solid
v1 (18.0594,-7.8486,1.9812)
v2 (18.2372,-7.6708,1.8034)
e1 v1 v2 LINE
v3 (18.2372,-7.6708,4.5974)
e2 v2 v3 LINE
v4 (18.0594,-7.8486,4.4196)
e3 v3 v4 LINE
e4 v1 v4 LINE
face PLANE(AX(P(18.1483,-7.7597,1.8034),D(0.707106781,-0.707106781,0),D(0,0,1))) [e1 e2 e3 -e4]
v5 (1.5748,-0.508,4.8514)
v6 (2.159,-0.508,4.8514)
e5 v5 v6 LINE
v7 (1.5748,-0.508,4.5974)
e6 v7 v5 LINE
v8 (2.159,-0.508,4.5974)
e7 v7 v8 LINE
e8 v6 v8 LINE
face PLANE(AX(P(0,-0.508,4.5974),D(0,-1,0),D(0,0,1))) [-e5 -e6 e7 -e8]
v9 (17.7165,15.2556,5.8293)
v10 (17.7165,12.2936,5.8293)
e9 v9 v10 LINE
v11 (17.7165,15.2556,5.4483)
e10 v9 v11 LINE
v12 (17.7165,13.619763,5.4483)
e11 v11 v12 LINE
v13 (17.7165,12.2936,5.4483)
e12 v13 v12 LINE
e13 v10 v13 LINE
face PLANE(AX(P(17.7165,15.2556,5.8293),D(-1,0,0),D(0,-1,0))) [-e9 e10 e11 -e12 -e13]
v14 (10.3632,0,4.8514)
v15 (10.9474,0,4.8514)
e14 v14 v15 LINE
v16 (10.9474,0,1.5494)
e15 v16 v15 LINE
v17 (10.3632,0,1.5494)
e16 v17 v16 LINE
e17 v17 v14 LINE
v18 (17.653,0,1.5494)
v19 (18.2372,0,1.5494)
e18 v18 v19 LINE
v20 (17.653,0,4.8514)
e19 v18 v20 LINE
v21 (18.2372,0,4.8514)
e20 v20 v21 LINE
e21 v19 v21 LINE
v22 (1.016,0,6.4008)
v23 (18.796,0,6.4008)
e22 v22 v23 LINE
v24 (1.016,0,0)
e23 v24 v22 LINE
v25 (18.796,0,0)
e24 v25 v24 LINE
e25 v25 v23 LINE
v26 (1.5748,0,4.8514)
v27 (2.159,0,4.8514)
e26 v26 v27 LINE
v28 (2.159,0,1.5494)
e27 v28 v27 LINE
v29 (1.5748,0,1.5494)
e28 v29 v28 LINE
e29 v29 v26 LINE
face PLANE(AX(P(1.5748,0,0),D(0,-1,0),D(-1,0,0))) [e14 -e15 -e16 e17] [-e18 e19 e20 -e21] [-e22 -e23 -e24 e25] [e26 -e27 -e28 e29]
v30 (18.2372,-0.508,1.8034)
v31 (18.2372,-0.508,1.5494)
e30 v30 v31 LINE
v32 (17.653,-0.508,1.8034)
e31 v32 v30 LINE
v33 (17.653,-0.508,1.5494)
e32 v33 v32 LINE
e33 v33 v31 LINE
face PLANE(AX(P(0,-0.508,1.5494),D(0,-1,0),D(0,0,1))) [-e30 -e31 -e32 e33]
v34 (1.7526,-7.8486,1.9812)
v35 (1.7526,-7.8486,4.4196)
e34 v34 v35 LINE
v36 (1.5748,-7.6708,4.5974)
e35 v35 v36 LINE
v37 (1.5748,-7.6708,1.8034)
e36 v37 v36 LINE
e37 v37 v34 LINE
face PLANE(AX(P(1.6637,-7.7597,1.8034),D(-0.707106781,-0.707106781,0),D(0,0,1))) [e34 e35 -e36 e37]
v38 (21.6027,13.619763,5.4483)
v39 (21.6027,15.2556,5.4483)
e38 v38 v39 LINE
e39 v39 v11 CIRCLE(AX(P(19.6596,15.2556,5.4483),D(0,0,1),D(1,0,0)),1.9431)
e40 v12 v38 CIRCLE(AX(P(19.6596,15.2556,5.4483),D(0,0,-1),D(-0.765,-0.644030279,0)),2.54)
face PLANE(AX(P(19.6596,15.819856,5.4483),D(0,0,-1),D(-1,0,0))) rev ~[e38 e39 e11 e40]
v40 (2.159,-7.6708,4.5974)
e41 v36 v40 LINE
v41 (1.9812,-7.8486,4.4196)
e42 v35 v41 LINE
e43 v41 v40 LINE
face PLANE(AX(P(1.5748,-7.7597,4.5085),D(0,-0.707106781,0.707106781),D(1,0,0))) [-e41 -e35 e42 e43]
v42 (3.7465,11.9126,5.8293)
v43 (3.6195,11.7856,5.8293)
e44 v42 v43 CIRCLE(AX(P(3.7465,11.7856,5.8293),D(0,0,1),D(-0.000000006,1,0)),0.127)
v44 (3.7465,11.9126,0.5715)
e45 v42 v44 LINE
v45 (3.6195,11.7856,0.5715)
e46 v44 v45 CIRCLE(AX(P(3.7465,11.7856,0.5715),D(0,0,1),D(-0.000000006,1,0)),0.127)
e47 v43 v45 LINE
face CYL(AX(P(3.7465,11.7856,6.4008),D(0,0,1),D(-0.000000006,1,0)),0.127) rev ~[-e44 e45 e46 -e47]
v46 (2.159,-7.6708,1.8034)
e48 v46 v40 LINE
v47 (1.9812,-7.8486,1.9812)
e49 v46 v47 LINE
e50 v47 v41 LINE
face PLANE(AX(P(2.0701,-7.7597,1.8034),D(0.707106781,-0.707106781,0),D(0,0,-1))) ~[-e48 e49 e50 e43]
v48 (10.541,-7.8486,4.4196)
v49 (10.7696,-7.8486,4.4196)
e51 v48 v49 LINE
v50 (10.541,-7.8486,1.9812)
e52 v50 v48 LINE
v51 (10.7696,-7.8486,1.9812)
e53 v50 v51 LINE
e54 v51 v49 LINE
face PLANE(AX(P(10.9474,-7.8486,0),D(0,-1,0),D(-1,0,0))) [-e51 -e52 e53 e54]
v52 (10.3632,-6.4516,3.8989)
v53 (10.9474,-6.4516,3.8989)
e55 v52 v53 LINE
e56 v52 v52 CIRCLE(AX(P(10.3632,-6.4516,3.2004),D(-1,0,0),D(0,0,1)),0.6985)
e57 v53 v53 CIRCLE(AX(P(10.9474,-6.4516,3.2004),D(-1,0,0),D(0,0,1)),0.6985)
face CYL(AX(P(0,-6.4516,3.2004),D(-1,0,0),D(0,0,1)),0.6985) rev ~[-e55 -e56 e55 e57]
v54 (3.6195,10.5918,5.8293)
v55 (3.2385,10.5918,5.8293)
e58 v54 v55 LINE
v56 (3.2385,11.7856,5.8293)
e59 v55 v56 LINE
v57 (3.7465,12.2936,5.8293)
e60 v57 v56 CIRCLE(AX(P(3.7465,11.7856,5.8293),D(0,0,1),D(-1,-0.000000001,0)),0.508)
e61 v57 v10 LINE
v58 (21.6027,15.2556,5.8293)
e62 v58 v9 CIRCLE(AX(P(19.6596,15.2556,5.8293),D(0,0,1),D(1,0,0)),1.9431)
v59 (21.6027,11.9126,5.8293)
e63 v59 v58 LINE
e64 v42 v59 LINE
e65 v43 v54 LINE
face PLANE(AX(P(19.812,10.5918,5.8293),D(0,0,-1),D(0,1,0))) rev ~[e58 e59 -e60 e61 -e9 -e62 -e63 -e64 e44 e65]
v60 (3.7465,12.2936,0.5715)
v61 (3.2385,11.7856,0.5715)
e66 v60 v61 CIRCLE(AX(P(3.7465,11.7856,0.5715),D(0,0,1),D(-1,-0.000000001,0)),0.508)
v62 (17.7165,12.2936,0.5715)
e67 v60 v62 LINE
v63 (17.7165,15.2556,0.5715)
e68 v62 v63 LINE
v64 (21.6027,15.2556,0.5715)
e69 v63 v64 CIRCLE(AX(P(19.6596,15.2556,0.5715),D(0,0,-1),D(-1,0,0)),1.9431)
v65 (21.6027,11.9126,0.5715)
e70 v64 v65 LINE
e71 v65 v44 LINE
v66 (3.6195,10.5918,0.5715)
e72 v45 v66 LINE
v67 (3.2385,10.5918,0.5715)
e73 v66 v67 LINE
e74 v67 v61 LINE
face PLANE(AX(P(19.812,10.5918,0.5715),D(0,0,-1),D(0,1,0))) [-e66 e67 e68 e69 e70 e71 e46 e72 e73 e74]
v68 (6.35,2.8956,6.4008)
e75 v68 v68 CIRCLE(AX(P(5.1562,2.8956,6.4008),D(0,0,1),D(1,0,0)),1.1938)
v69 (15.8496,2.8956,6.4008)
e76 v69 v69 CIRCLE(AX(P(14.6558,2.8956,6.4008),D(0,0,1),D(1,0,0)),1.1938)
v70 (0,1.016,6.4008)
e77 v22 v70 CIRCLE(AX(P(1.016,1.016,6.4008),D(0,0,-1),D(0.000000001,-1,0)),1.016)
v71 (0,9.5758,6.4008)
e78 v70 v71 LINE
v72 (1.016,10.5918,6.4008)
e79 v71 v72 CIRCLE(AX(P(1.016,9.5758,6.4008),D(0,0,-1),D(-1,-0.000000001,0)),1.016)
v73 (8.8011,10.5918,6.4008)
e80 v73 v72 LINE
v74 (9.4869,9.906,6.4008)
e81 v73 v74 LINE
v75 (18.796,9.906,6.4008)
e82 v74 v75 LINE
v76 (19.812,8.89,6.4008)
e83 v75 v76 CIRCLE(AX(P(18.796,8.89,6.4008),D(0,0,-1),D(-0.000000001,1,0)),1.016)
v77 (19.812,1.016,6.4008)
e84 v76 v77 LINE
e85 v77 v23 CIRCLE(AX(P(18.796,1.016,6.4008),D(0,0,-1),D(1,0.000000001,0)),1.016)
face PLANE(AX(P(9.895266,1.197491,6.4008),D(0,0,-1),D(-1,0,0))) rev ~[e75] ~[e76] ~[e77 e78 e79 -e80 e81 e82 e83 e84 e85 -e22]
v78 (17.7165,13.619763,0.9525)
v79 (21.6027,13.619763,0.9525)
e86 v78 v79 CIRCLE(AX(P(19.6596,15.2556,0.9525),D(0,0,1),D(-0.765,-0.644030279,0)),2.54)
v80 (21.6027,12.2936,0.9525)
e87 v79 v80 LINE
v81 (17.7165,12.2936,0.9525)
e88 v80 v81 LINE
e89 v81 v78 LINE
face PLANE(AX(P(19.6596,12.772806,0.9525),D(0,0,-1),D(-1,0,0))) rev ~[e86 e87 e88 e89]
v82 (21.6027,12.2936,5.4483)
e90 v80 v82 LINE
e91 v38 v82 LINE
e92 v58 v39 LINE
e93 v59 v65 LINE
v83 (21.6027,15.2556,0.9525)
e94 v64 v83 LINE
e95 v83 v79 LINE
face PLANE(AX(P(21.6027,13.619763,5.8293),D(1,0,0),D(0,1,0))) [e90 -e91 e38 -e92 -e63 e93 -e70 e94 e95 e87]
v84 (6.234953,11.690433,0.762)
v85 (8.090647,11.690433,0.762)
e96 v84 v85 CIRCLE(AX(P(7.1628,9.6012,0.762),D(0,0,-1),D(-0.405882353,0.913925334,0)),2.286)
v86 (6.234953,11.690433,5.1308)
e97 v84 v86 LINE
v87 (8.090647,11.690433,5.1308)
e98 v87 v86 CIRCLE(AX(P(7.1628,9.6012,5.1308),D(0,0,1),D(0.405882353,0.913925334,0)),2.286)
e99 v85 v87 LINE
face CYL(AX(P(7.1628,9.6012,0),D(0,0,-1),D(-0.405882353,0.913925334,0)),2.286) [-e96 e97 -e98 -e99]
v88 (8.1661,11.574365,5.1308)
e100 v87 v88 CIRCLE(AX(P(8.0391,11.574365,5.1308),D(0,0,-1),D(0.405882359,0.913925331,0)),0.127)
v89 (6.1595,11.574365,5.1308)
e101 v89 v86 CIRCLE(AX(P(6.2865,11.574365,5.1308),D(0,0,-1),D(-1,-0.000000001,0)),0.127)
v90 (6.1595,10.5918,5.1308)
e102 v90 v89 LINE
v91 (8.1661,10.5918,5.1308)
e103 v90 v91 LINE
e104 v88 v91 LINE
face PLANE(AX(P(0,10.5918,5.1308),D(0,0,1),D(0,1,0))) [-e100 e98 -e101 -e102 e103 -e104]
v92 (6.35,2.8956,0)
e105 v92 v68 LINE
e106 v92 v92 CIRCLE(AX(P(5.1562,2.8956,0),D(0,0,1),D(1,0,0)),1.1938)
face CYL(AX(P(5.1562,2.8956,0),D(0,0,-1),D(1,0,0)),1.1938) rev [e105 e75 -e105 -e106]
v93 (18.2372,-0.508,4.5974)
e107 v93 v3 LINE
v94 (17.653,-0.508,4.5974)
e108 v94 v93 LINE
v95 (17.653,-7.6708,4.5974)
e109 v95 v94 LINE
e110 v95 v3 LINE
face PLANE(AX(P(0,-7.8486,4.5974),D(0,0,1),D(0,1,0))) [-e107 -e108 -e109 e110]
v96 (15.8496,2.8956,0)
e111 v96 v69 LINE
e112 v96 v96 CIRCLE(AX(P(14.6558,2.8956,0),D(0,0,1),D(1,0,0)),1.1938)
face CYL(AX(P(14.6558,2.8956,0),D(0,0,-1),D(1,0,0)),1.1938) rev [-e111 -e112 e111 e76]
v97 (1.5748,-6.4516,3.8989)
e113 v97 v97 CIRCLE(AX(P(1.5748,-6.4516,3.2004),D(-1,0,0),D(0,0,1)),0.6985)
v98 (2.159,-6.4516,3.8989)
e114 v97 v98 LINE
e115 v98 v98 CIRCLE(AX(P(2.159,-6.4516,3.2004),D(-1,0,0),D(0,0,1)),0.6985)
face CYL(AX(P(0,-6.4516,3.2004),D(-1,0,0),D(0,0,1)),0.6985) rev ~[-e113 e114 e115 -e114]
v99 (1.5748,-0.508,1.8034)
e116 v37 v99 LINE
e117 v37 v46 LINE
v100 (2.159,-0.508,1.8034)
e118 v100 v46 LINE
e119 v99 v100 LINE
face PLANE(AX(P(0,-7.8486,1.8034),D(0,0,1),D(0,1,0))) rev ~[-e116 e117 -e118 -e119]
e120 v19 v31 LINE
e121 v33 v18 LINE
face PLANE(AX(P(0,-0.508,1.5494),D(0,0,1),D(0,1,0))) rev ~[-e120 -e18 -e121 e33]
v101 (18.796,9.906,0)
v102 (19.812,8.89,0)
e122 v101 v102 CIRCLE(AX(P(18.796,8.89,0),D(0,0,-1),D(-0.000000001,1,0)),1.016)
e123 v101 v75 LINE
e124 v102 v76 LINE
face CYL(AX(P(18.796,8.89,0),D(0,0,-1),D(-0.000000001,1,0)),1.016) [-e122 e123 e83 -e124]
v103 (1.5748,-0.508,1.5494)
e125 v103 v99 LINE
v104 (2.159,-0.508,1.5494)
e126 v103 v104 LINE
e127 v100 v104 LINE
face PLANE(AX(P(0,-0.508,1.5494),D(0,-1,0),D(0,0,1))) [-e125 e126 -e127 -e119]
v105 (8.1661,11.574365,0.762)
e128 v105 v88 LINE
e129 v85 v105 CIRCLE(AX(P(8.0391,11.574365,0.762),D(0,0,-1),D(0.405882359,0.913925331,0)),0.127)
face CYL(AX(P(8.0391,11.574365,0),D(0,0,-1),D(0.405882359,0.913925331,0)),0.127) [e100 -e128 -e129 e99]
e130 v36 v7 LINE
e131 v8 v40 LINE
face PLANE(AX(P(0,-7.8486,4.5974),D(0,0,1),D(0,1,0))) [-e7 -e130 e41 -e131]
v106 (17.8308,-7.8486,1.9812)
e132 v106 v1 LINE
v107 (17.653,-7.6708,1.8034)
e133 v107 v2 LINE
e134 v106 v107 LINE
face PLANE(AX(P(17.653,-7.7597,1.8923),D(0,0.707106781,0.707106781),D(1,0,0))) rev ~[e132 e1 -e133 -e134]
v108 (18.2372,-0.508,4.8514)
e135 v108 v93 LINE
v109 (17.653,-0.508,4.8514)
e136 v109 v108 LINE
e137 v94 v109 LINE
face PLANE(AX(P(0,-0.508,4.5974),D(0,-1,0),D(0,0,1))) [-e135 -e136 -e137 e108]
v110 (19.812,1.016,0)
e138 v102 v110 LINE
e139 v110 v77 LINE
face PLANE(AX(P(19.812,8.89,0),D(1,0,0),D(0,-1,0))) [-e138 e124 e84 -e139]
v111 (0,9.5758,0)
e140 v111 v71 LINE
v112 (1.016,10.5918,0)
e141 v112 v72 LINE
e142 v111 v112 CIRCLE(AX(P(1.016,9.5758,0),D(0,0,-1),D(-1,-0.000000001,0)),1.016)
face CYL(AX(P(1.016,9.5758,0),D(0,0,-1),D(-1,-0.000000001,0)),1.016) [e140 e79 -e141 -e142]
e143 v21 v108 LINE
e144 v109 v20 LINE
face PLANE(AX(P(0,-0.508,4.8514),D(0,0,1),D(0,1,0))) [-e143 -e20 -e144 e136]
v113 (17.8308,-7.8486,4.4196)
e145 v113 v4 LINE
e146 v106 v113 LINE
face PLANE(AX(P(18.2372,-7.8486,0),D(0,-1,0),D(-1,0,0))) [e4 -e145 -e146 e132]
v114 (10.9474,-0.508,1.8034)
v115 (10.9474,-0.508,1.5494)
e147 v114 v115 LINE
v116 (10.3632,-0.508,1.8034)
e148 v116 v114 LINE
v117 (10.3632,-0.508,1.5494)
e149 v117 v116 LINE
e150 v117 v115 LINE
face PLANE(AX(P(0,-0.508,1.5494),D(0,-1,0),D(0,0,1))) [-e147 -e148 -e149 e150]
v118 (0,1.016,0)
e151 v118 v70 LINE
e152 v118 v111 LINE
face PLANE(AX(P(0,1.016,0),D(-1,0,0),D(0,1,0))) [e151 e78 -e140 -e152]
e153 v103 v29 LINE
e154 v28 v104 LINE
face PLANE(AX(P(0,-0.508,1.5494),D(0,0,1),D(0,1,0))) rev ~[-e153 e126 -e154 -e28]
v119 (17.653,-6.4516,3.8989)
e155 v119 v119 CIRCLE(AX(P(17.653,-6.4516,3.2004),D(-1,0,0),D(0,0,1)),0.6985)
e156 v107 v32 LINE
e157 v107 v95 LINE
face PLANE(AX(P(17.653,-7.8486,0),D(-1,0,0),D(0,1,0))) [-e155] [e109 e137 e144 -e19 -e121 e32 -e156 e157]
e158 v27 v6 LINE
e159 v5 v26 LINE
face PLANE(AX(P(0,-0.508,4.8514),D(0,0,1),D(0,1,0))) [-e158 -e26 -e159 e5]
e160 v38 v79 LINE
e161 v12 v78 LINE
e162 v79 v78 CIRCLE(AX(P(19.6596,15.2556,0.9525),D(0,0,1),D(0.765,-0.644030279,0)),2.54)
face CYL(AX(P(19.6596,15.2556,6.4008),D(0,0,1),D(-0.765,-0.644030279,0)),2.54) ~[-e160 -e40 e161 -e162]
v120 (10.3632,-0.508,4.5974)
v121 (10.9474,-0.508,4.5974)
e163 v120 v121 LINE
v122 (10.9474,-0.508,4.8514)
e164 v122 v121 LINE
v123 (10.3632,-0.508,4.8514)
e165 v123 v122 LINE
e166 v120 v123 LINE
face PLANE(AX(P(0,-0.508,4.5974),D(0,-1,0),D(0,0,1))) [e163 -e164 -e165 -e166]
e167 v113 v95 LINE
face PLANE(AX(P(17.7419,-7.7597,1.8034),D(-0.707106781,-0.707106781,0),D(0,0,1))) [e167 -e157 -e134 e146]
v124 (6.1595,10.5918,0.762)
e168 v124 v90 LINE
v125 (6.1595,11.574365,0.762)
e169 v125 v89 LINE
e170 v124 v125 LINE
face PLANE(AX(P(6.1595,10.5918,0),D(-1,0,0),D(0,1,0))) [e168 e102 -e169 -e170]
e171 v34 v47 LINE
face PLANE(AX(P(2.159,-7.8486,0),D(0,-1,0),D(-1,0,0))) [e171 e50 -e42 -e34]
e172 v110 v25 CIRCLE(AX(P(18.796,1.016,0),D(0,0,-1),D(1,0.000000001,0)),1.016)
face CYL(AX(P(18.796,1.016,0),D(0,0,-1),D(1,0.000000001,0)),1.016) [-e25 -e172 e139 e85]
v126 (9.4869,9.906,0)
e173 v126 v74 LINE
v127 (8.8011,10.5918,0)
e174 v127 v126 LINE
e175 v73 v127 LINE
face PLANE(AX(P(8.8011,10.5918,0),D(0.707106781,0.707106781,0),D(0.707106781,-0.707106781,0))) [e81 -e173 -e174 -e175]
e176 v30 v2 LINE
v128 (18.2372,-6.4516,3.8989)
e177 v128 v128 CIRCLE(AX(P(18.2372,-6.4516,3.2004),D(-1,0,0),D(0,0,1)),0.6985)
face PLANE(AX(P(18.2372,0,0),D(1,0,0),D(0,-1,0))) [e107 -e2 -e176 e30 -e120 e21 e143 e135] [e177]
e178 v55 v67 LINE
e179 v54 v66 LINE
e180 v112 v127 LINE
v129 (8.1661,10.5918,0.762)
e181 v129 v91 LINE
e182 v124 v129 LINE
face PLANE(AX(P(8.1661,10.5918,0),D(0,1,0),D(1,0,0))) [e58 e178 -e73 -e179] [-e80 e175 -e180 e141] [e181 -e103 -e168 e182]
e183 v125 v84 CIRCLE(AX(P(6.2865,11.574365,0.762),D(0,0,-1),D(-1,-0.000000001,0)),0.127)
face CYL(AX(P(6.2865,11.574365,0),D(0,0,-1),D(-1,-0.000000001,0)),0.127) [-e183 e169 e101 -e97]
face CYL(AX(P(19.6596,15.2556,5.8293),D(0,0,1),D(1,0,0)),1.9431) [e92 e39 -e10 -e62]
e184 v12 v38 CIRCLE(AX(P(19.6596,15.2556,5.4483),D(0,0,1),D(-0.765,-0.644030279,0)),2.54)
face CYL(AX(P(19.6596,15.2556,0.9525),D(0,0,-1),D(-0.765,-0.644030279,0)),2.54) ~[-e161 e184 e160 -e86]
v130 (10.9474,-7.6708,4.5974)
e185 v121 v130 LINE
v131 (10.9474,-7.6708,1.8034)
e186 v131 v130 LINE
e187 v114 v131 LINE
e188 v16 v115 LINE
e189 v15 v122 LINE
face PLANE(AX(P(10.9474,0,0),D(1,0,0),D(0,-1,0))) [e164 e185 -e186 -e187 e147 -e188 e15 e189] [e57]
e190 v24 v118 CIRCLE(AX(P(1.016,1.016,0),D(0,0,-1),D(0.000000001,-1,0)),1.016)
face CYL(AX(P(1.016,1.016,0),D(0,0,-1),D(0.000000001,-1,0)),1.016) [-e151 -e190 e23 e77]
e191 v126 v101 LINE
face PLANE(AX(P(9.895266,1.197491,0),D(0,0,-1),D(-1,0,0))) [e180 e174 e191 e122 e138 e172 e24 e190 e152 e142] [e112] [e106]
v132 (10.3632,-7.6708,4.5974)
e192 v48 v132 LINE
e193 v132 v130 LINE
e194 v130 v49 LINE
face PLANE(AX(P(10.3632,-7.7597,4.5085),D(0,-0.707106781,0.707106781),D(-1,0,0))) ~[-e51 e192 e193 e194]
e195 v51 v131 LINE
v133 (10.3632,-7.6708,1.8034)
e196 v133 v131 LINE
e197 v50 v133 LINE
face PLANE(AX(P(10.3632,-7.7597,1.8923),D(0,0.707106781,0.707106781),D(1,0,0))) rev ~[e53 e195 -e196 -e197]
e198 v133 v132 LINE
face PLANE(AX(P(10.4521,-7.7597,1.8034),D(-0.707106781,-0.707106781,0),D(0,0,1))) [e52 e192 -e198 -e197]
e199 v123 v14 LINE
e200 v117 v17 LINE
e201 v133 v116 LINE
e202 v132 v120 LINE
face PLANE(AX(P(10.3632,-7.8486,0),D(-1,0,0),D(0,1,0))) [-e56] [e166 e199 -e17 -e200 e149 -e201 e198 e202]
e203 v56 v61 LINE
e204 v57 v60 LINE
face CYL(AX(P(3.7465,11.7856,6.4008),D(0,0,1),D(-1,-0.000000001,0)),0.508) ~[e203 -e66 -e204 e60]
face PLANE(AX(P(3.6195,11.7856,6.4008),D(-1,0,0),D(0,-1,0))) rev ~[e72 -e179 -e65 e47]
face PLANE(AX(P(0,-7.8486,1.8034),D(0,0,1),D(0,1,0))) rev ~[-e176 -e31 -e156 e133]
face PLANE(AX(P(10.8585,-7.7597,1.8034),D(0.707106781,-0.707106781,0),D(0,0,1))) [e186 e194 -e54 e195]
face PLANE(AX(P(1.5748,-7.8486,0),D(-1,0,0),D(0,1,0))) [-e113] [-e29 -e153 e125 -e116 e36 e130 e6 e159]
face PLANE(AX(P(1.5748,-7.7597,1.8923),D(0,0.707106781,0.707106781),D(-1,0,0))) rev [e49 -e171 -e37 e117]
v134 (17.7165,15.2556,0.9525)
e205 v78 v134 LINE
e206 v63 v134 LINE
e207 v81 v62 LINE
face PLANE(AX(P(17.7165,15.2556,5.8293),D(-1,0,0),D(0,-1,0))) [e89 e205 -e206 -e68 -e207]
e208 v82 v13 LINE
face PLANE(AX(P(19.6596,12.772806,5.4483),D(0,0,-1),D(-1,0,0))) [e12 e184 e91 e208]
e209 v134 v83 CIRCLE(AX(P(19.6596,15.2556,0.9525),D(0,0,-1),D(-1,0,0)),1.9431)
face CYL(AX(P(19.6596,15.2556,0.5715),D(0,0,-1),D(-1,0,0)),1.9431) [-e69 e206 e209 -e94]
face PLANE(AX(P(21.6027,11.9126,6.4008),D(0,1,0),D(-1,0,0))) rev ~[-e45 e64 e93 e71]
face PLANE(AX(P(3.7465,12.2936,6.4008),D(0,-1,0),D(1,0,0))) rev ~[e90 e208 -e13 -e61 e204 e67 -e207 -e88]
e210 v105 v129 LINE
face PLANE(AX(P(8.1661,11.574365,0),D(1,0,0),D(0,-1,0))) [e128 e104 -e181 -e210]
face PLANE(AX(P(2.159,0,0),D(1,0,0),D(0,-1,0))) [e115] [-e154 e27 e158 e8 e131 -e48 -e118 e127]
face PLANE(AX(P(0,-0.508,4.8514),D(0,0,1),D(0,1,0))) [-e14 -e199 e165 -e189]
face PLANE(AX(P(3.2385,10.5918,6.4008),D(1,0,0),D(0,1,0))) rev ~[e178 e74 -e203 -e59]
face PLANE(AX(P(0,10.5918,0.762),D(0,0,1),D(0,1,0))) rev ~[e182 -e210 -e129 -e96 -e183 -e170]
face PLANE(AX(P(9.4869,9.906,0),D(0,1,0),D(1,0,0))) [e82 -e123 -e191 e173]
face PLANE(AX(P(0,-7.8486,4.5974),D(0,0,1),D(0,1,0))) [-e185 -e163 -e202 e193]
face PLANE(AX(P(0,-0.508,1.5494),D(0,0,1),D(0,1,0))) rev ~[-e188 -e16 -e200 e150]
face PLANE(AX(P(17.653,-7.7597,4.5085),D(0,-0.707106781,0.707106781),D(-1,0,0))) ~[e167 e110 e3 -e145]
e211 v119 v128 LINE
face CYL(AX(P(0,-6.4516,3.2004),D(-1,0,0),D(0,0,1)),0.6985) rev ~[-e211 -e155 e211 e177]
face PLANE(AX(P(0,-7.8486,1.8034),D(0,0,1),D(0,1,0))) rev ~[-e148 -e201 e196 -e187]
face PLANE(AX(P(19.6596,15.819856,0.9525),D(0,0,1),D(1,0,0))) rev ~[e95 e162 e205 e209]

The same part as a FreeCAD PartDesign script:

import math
import FreeCAD as App
import Part
import Sketcher
from FreeCAD import Vector
Q = App.Units.Quantity


def edges_at(feature, points):
    """Names of the edges that pass closest to the given points."""
    edges = feature.Shape.Edges
    near = lambda p: min(range(len(edges)), key=lambda i: edges[i].distToShape(Part.Vertex(*p))[0])
    return sorted({f"Edge{near(p) + 1}" for p in points})

doc = App.newDocument("Part")
body = doc.addObject("PartDesign::Body", "Body")

# Sketch on XY plane
sketch1 = body.newObject("Sketcher::SketchObject", "Sketch")
sketch1.AttachmentSupport = (doc.getObject("XY_Plane"), [""])
sketch1.MapMode = "FlatFace"
sketch1.addGeometry([
    Part.LineSegment(Vector(9.4869, 9.906, 0), Vector(8.8011, 10.5918, 0)),  # 0
    Part.LineSegment(Vector(8.8011, 10.5918, 0), Vector(8.1661, 10.5918, 0)),  # 1
    Part.LineSegment(Vector(8.1661, 10.5918, 0), Vector(8.1661, 11.574365, 0)),  # 2
    Part.ArcOfCircle(Part.Circle(Vector(8.0391, 11.574365, 0), Vector(0, 0, 1), 0.127), math.radians(0), math.radians(66.053568)),  # 3
    Part.ArcOfCircle(Part.Circle(Vector(7.1628, 9.6012, 0), Vector(0, 0, 1), 2.286), math.radians(66.053568), math.radians(113.946432)),  # 4
    Part.ArcOfCircle(Part.Circle(Vector(6.2865, 11.574365, 0), Vector(0, 0, 1), 0.127), math.radians(113.946432), math.radians(180)),  # 5
    Part.LineSegment(Vector(6.1595, 11.574365, 0), Vector(6.1595, 10.5918, 0)),  # 6
    Part.LineSegment(Vector(6.1595, 10.5918, 0), Vector(1.016, 10.5918, 0)),  # 7
    Part.ArcOfCircle(Part.Circle(Vector(1.016, 9.5758, 0), Vector(0, 0, 1), 1.016), math.radians(90), math.radians(180)),  # 8
    Part.LineSegment(Vector(0, 9.5758, 0), Vector(0, 1.016, 0)),  # 9
    Part.ArcOfCircle(Part.Circle(Vector(1.016, 1.016, 0), Vector(0, 0, 1), 1.016), math.radians(180), math.radians(270)),  # 10
    Part.LineSegment(Vector(1.016, 0, 0), Vector(1.5748, 0, 0)),  # 11
    Part.LineSegment(Vector(1.5748, 0, 0), Vector(1.5748, -7.8486, 0)),  # 12
    Part.LineSegment(Vector(1.5748, -7.8486, 0), Vector(2.159, -7.8486, 0)),  # 13
    Part.LineSegment(Vector(2.159, -7.8486, 0), Vector(2.159, 0, 0)),  # 14
    Part.LineSegment(Vector(2.159, 0, 0), Vector(10.3632, 0, 0)),  # 15
    Part.LineSegment(Vector(10.3632, 0, 0), Vector(10.3632, -7.8486, 0)),  # 16
    Part.LineSegment(Vector(10.3632, -7.8486, 0), Vector(10.9474, -7.8486, 0)),  # 17
    Part.LineSegment(Vector(10.9474, -7.8486, 0), Vector(10.9474, 0, 0)),  # 18
    Part.LineSegment(Vector(10.9474, 0, 0), Vector(17.653, 0, 0)),  # 19
    Part.LineSegment(Vector(17.653, 0, 0), Vector(17.653, -7.8486, 0)),  # 20
    Part.LineSegment(Vector(17.653, -7.8486, 0), Vector(18.2372, -7.8486, 0)),  # 21
    Part.LineSegment(Vector(18.2372, -7.8486, 0), Vector(18.2372, 0, 0)),  # 22
    Part.LineSegment(Vector(18.2372, 0, 0), Vector(18.796, 0, 0)),  # 23
    Part.ArcOfCircle(Part.Circle(Vector(18.796, 1.016, 0), Vector(0, 0, 1), 1.016), math.radians(-90), math.radians(0)),  # 24
    Part.LineSegment(Vector(19.812, 1.016, 0), Vector(19.812, 8.89, 0)),  # 25
    Part.ArcOfCircle(Part.Circle(Vector(18.796, 8.89, 0), Vector(0, 0, 1), 1.016), math.radians(0), math.radians(90)),  # 26
    Part.LineSegment(Vector(18.796, 9.906, 0), Vector(9.4869, 9.906, 0)),  # 27
    Part.Circle(Vector(14.6558, 2.8956, 0), Vector(0, 0, 1), 1.1938),  # 28
    Part.Circle(Vector(5.1562, 2.8956, 0), Vector(0, 0, 1), 1.1938),  # 29
], False)
sketch1.addConstraint([
    Sketcher.Constraint("Coincident", 0, 2, 1, 1),
    Sketcher.Constraint("Coincident", 1, 2, 2, 1),
    Sketcher.Constraint("Tangent", 2, 2, 3, 1),
    Sketcher.Constraint("Tangent", 3, 2, 4, 1),
    Sketcher.Constraint("Tangent", 4, 2, 5, 1),
    Sketcher.Constraint("Tangent", 5, 2, 6, 1),
    Sketcher.Constraint("Coincident", 6, 2, 7, 1),
    Sketcher.Constraint("Tangent", 7, 2, 8, 1),
    Sketcher.Constraint("Tangent", 8, 2, 9, 1),
    Sketcher.Constraint("Tangent", 9, 2, 10, 1),
    Sketcher.Constraint("Tangent", 10, 2, 11, 1),
    Sketcher.Constraint("Coincident", 11, 2, 12, 1),
    Sketcher.Constraint("Coincident", 12, 2, 13, 1),
    Sketcher.Constraint("Coincident", 13, 2, 14, 1),
    Sketcher.Constraint("Coincident", 14, 2, 15, 1),
    Sketcher.Constraint("Coincident", 15, 2, 16, 1),
    Sketcher.Constraint("Coincident", 16, 2, 17, 1),
    Sketcher.Constraint("Coincident", 17, 2, 18, 1),
    Sketcher.Constraint("Coincident", 18, 2, 19, 1),
    Sketcher.Constraint("Coincident", 19, 2, 20, 1),
    Sketcher.Constraint("Coincident", 20, 2, 21, 1),
    Sketcher.Constraint("Coincident", 21, 2, 22, 1),
    Sketcher.Constraint("Coincident", 22, 2, 23, 1),
    Sketcher.Constraint("Tangent", 23, 2, 24, 1),
    Sketcher.Constraint("Tangent", 24, 2, 25, 1),
    Sketcher.Constraint("Tangent", 25, 2, 26, 1),
    Sketcher.Constraint("Tangent", 26, 2, 27, 1),
    Sketcher.Constraint("Coincident", 27, 2, 0, 1),
    Sketcher.Constraint("Horizontal", 1),
    Sketcher.Constraint("Vertical", 2),
    Sketcher.Constraint("Vertical", 6),
    Sketcher.Constraint("Horizontal", 7),
    Sketcher.Constraint("Vertical", 9),
    Sketcher.Constraint("Horizontal", 11),
    Sketcher.Constraint("Vertical", 12),
    Sketcher.Constraint("Horizontal", 13),
    Sketcher.Constraint("Vertical", 14),
    Sketcher.Constraint("Horizontal", 15),
    Sketcher.Constraint("Vertical", 16),
    Sketcher.Constraint("Horizontal", 17),
    Sketcher.Constraint("Vertical", 18),
    Sketcher.Constraint("Horizontal", 19),
    Sketcher.Constraint("Vertical", 20),
    Sketcher.Constraint("Horizontal", 21),
    Sketcher.Constraint("Vertical", 22),
    Sketcher.Constraint("Horizontal", 23),
    Sketcher.Constraint("Vertical", 25),
    Sketcher.Constraint("Horizontal", 27),
    Sketcher.Constraint("Equal", 3, 5),
    Sketcher.Constraint("Equal", 8, 10),
    Sketcher.Constraint("Equal", 10, 24),
    Sketcher.Constraint("Equal", 24, 26),
    Sketcher.Constraint("Equal", 28, 29),
    Sketcher.Constraint("PointOnObject", 8, 2, -2),
    Sketcher.Constraint("PointOnObject", 10, 2, -1),
    Sketcher.Constraint("PointOnObject", 14, 2, -1),
    Sketcher.Constraint("PointOnObject", 18, 2, -1),
    Sketcher.Constraint("PointOnObject", 22, 2, -1),
    Sketcher.Constraint("Horizontal", 3, 3, 5, 3),
    Sketcher.Constraint("Horizontal", 28, 3, 29, 3),
    Sketcher.Constraint("Horizontal", 1, 2, 6, 2),
    Sketcher.Constraint("Horizontal", 13, 2, 16, 2),
    Sketcher.Constraint("Horizontal", 17, 2, 20, 2),
    Sketcher.Constraint("Equal", 13, 17),
    Sketcher.Constraint("Equal", 17, 21),
    Sketcher.Constraint("Equal", 11, 23),
    Sketcher.Constraint("Radius", 4, Q("0.09 in")),
    Sketcher.Constraint("Radius", 8, Q("0.04 in")),
    Sketcher.Constraint("Diameter", 28, Q("0.094 in")),
    Sketcher.Constraint("Angle", 0, Q("135 deg")),
    Sketcher.Constraint("Radius", 3, Q("0.005 in")),
    Sketcher.Constraint("DistanceY", 25, 1, 25, 2, Q("0.31 in")),
    Sketcher.Constraint("DistanceX", 10, 3, 24, 3, Q("0.7 in")),
    Sketcher.Constraint("DistanceX", 1, 2, 1, 1, Q("0.025 in")),
    Sketcher.Constraint("DistanceX", 11, 1, 11, 2, Q("0.022 in")),
    Sketcher.Constraint("DistanceX", 13, 1, 13, 2, Q("0.023 in")),
    Sketcher.Constraint("DistanceX", 15, 1, 15, 2, Q("0.323 in")),
    Sketcher.Constraint("DistanceY", 9, 2, 9, 1, Q("0.337 in")),
    Sketcher.Constraint("DistanceY", 12, 2, 12, 1, Q("0.309 in")),
    Sketcher.Constraint("DistanceX", 7, 2, 7, 1, Q("0.2025 in")),
    Sketcher.Constraint("DistanceX", 27, 2, 27, 1, Q("0.3665 in")),
    Sketcher.Constraint("DistanceY", -1, 1, 4, 3, Q("0.378 in")),
    Sketcher.Constraint("DistanceX", -1, 1, 28, 3, Q("0.577 in")),
    Sketcher.Constraint("DistanceY", -1, 1, 28, 3, Q("0.114 in")),
    Sketcher.Constraint("DistanceX", -1, 1, 29, 3, Q("0.203 in")),
])
pad1 = body.newObject("PartDesign::Pad", "Pad")
pad1.Profile = sketch1
pad1.Length = Q("0.252 in")

# Sketch on YZ plane
sketch2 = body.newObject("Sketcher::SketchObject", "Sketch001")
sketch2.AttachmentSupport = (doc.getObject("YZ_Plane"), [""])
sketch2.MapMode = "FlatFace"
sketch2.addGeometry([
    Part.LineSegment(Vector(-7.8486, 0, 0), Vector(-7.8486, 1.8034, 0)),  # 0
    Part.LineSegment(Vector(-7.8486, 1.8034, 0), Vector(-0.508, 1.8034, 0)),  # 1
    Part.LineSegment(Vector(-0.508, 1.8034, 0), Vector(-0.508, 1.5494, 0)),  # 2
    Part.LineSegment(Vector(-0.508, 1.5494, 0), Vector(0, 1.5494, 0)),  # 3
    Part.LineSegment(Vector(0, 1.5494, 0), Vector(0, 0, 0)),  # 4
    Part.LineSegment(Vector(0, 0, 0), Vector(-7.8486, 0, 0)),  # 5
    Part.LineSegment(Vector(-0.508, 4.5974, 0), Vector(-7.8486, 4.5974, 0)),  # 6
    Part.LineSegment(Vector(-7.8486, 4.5974, 0), Vector(-7.8486, 6.4008, 0)),  # 7
    Part.LineSegment(Vector(-7.8486, 6.4008, 0), Vector(0, 6.4008, 0)),  # 8
    Part.LineSegment(Vector(0, 6.4008, 0), Vector(0, 4.8514, 0)),  # 9
    Part.LineSegment(Vector(0, 4.8514, 0), Vector(-0.508, 4.8514, 0)),  # 10
    Part.LineSegment(Vector(-0.508, 4.8514, 0), Vector(-0.508, 4.5974, 0)),  # 11
    Part.LineSegment(Vector(11.8872, 5.1308, 0), Vector(10.5918, 5.1308, 0)),  # 12
    Part.LineSegment(Vector(10.5918, 5.1308, 0), Vector(10.5918, 6.4008, 0)),  # 13
    Part.LineSegment(Vector(10.5918, 6.4008, 0), Vector(11.8872, 6.4008, 0)),  # 14
    Part.LineSegment(Vector(11.8872, 6.4008, 0), Vector(11.8872, 5.1308, 0)),  # 15
    Part.Circle(Vector(-6.4516, 3.2004, 0), Vector(0, 0, 1), 0.6985),  # 16
    Part.LineSegment(Vector(11.8872, 0, 0), Vector(10.5918, 0, 0)),  # 17
    Part.LineSegment(Vector(10.5918, 0, 0), Vector(10.5918, 0.762, 0)),  # 18
    Part.LineSegment(Vector(10.5918, 0.762, 0), Vector(11.8872, 0.762, 0)),  # 19
    Part.LineSegment(Vector(11.8872, 0.762, 0), Vector(11.8872, 0, 0)),  # 20
], False)
sketch2.addConstraint([
    Sketcher.Constraint("Coincident", 0, 2, 1, 1),
    Sketcher.Constraint("Coincident", 1, 2, 2, 1),
    Sketcher.Constraint("Coincident", 2, 2, 3, 1),
    Sketcher.Constraint("Coincident", 3, 2, 4, 1),
    Sketcher.Constraint("Coincident", 4, 2, 5, 1),
    Sketcher.Constraint("Coincident", 5, 2, 0, 1),
    Sketcher.Constraint("Coincident", 6, 2, 7, 1),
    Sketcher.Constraint("Coincident", 7, 2, 8, 1),
    Sketcher.Constraint("Coincident", 8, 2, 9, 1),
    Sketcher.Constraint("Coincident", 9, 2, 10, 1),
    Sketcher.Constraint("Coincident", 10, 2, 11, 1),
    Sketcher.Constraint("Coincident", 11, 2, 6, 1),
    Sketcher.Constraint("Coincident", 12, 2, 13, 1),
    Sketcher.Constraint("Coincident", 13, 2, 14, 1),
    Sketcher.Constraint("Coincident", 14, 2, 15, 1),
    Sketcher.Constraint("Coincident", 15, 2, 12, 1),
    Sketcher.Constraint("Coincident", 17, 2, 18, 1),
    Sketcher.Constraint("Coincident", 18, 2, 19, 1),
    Sketcher.Constraint("Coincident", 19, 2, 20, 1),
    Sketcher.Constraint("Coincident", 20, 2, 17, 1),
    Sketcher.Constraint("Vertical", 0),
    Sketcher.Constraint("Horizontal", 1),
    Sketcher.Constraint("Vertical", 2),
    Sketcher.Constraint("Horizontal", 3),
    Sketcher.Constraint("Vertical", 4),
    Sketcher.Constraint("Horizontal", 5),
    Sketcher.Constraint("Horizontal", 6),
    Sketcher.Constraint("Vertical", 7),
    Sketcher.Constraint("Horizontal", 8),
    Sketcher.Constraint("Vertical", 9),
    Sketcher.Constraint("Horizontal", 10),
    Sketcher.Constraint("Vertical", 11),
    Sketcher.Constraint("Horizontal", 12),
    Sketcher.Constraint("Vertical", 13),
    Sketcher.Constraint("Horizontal", 14),
    Sketcher.Constraint("Vertical", 15),
    Sketcher.Constraint("Horizontal", 17),
    Sketcher.Constraint("Vertical", 18),
    Sketcher.Constraint("Horizontal", 19),
    Sketcher.Constraint("Vertical", 20),
    Sketcher.Constraint("Coincident", 4, 2, -1, 1),
    Sketcher.Constraint("PointOnObject", 8, 2, -2),
    Sketcher.Constraint("PointOnObject", 17, 2, -1),
    Sketcher.Constraint("Horizontal", 8, 2, 13, 2),
    Sketcher.Constraint("Vertical", 5, 2, 6, 2),
    Sketcher.Constraint("Vertical", 2, 2, 10, 2),
    Sketcher.Constraint("Vertical", 13, 2, 17, 2),
    Sketcher.Constraint("Vertical", 15, 2, 19, 2),
    Sketcher.Constraint("Equal", 0, 7),
    Sketcher.Constraint("Equal", 4, 9),
    Sketcher.Constraint("Diameter", 16, Q("0.055 in")),
    Sketcher.Constraint("DistanceX", 3, 1, 3, 2, Q("0.02 in")),
    Sketcher.Constraint("DistanceY", 2, 2, 2, 1, Q("0.01 in")),
    Sketcher.Constraint("DistanceY", 13, 1, 13, 2, Q("0.05 in")),
    Sketcher.Constraint("DistanceY", 18, 1, 18, 2, Q("0.03 in")),
    Sketcher.Constraint("DistanceX", 1, 1, 1, 2, Q("0.289 in")),
    Sketcher.Constraint("DistanceX", 12, 2, 12, 1, Q("0.051 in")),
    Sketcher.Constraint("DistanceY", 0, 1, 0, 2, Q("0.071 in")),
    Sketcher.Constraint("DistanceY", 0, 2, 6, 2, Q("0.11 in")),
    Sketcher.Constraint("DistanceX", 16, 3, -1, 1, Q("0.254 in")),
    Sketcher.Constraint("DistanceY", -1, 1, 16, 3, Q("0.126 in")),
    Sketcher.Constraint("DistanceX", -1, 1, 12, 2, Q("0.417 in")),
])
pocket1 = body.newObject("PartDesign::Pocket", "Pocket")
pocket1.Profile = sketch2
pocket1.Type = "ThroughAll"
pocket1.Reversed = True
doc.recompute()

chamfer = body.newObject("PartDesign::Chamfer", "Chamfer")
chamfer.Base = (pocket1, edges_at(pocket1, [
    (1.867, -7.849, 1.803),
    (10.655, -7.849, 1.803),
    (17.945, -7.849, 1.803),
    (18.237, -7.849, 3.2),
    (17.653, -7.849, 3.2),
    (10.947, -7.849, 3.2),
    (10.363, -7.849, 3.2),
    (2.159, -7.849, 3.2),
    (1.575, -7.849, 3.2),
    (1.867, -7.849, 4.597),
    (10.655, -7.849, 4.597),
    (17.945, -7.849, 4.597),
]))
chamfer.Size = Q("0.007 in")

# Sketch on XY plane
sketch3 = body.newObject("Sketcher::SketchObject", "Sketch002")
sketch3.AttachmentSupport = (doc.getObject("XY_Plane"), [""])
sketch3.MapMode = "FlatFace"
sketch3.AttachmentOffset = App.Placement(Vector(0, 0, 0.252 * 25.4), App.Rotation())
sketch3.addGeometry([
    Part.LineSegment(Vector(3.2385, 11.7856, 0), Vector(3.2385, 10.5918, 0)),  # 0
    Part.LineSegment(Vector(3.2385, 10.5918, 0), Vector(3.6195, 10.5918, 0)),  # 1
    Part.LineSegment(Vector(3.6195, 10.5918, 0), Vector(3.6195, 11.7856, 0)),  # 2
    Part.ArcOfCircle(Part.Circle(Vector(3.7465, 11.7856, 0), Vector(0, 0, 1), 0.127), math.radians(90), math.radians(180)),  # 3
    Part.LineSegment(Vector(3.7465, 11.9126, 0), Vector(21.6027, 11.9126, 0)),  # 4
    Part.LineSegment(Vector(21.6027, 11.9126, 0), Vector(21.6027, 13.619763, 0)),  # 5
    Part.ArcOfCircle(Part.Circle(Vector(19.6596, 15.2556, 0), Vector(0, 0, 1), 2.54), math.radians(-40.093008), math.radians(220.093008)),  # 6
    Part.LineSegment(Vector(17.7165, 13.619763, 0), Vector(17.7165, 12.2936, 0)),  # 7
    Part.LineSegment(Vector(17.7165, 12.2936, 0), Vector(3.7465, 12.2936, 0)),  # 8
    Part.ArcOfCircle(Part.Circle(Vector(3.7465, 11.7856, 0), Vector(0, 0, 1), 0.508), math.radians(90), math.radians(180)),  # 9
], False)
sketch3.addConstraint([
    Sketcher.Constraint("Coincident", 0, 2, 1, 1),
    Sketcher.Constraint("Coincident", 1, 2, 2, 1),
    Sketcher.Constraint("Tangent", 2, 2, 3, 2),
    Sketcher.Constraint("Tangent", 3, 1, 4, 1),
    Sketcher.Constraint("Coincident", 4, 2, 5, 1),
    Sketcher.Constraint("Coincident", 5, 2, 6, 1),
    Sketcher.Constraint("Coincident", 6, 2, 7, 1),
    Sketcher.Constraint("Coincident", 7, 2, 8, 1),
    Sketcher.Constraint("Tangent", 8, 2, 9, 1),
    Sketcher.Constraint("Tangent", 9, 2, 0, 1),
    Sketcher.Constraint("Vertical", 0),
    Sketcher.Constraint("Horizontal", 1),
    Sketcher.Constraint("Vertical", 2),
    Sketcher.Constraint("Horizontal", 4),
    Sketcher.Constraint("Vertical", 5),
    Sketcher.Constraint("Vertical", 7),
    Sketcher.Constraint("Horizontal", 8),
    Sketcher.Constraint("Coincident", 9, 3, 3, 3),
    Sketcher.Constraint("Horizontal", 5, 2, 6, 2),
    Sketcher.Constraint("Radius", 6, Q("0.1 in")),
    Sketcher.Constraint("Radius", 9, Q("0.02 in")),
    Sketcher.Constraint("Radius", 3, Q("0.005 in")),
    Sketcher.Constraint("DistanceX", 8, 2, 8, 1, Q("0.55 in")),
    Sketcher.Constraint("DistanceX", 4, 1, 4, 2, Q("0.703 in")),
    Sketcher.Constraint("DistanceY", 0, 2, 0, 1, Q("0.047 in")),
    Sketcher.Constraint("DistanceY", -1, 1, 3, 3, Q("0.464 in")),
    Sketcher.Constraint("DistanceX", -1, 1, 6, 3, Q("0.774 in")),
    Sketcher.Constraint("DistanceY", -1, 1, 6, 3, Q("15.2556 mm")),
])
pad2 = body.newObject("PartDesign::Pad", "Pad001")
pad2.Profile = sketch3
pad2.Length = Q("0.252 in")
pad2.Reversed = True

# Sketch on YZ plane
sketch4 = body.newObject("Sketcher::SketchObject", "Sketch003")
sketch4.AttachmentSupport = (doc.getObject("YZ_Plane"), [""])
sketch4.MapMode = "FlatFace"
sketch4.AttachmentOffset = App.Placement(Vector(0, 0, 0.78 * 25.4), App.Rotation())
sketch4.addGeometry([
    Part.LineSegment(Vector(17.7956, 0.5715, 0), Vector(10.5918, 0.5715, 0)),  # 0
    Part.LineSegment(Vector(10.5918, 0.5715, 0), Vector(10.5918, 0, 0)),  # 1
    Part.LineSegment(Vector(10.5918, 0, 0), Vector(17.7956, 0, 0)),  # 2
    Part.LineSegment(Vector(17.7956, 0, 0), Vector(17.7956, 0.5715, 0)),  # 3
    Part.LineSegment(Vector(17.7956, 6.4008, 0), Vector(10.5918, 6.4008, 0)),  # 4
    Part.LineSegment(Vector(10.5918, 6.4008, 0), Vector(10.5918, 5.8293, 0)),  # 5
    Part.LineSegment(Vector(10.5918, 5.8293, 0), Vector(17.7956, 5.8293, 0)),  # 6
    Part.LineSegment(Vector(17.7956, 5.8293, 0), Vector(17.7956, 6.4008, 0)),  # 7
], False)
sketch4.addConstraint([
    Sketcher.Constraint("Coincident", 0, 2, 1, 1),
    Sketcher.Constraint("Coincident", 1, 2, 2, 1),
    Sketcher.Constraint("Coincident", 2, 2, 3, 1),
    Sketcher.Constraint("Coincident", 3, 2, 0, 1),
    Sketcher.Constraint("Coincident", 4, 2, 5, 1),
    Sketcher.Constraint("Coincident", 5, 2, 6, 1),
    Sketcher.Constraint("Coincident", 6, 2, 7, 1),
    Sketcher.Constraint("Coincident", 7, 2, 4, 1),
    Sketcher.Constraint("Horizontal", 0),
    Sketcher.Constraint("Vertical", 1),
    Sketcher.Constraint("Horizontal", 2),
    Sketcher.Constraint("Vertical", 3),
    Sketcher.Constraint("Horizontal", 4),
    Sketcher.Constraint("Vertical", 5),
    Sketcher.Constraint("Horizontal", 6),
    Sketcher.Constraint("Vertical", 7),
    Sketcher.Constraint("PointOnObject", 1, 2, -1),
    Sketcher.Constraint("Vertical", 1, 2, 4, 2),
    Sketcher.Constraint("Vertical", 3, 2, 6, 2),
    Sketcher.Constraint("Equal", 3, 5),
    Sketcher.Constraint("DistanceY", 1, 2, 1, 1, Q("0.0225 in")),
    Sketcher.Constraint("DistanceX", -1, 1, 0, 2, Q("0.417 in")),
    Sketcher.Constraint("DistanceY", -1, 1, 4, 2, Q("0.252 in")),
    Sketcher.Constraint("DistanceX", 0, 2, 0, 1, Q("7.2038 mm")),
])
pocket2 = body.newObject("PartDesign::Pocket", "Pocket001")
pocket2.Profile = sketch4
pocket2.Type = "ThroughAll"
pocket2.Midplane = True

# Sketch on XY plane
sketch5 = body.newObject("Sketcher::SketchObject", "Sketch004")
sketch5.AttachmentSupport = (doc.getObject("XY_Plane"), [""])
sketch5.MapMode = "FlatFace"
sketch5.AttachmentOffset = App.Placement(Vector(0, 0, 0.2295 * 25.4), App.Rotation())
sketch5.addGeometry([
    Part.LineSegment(Vector(21.6027, 15.2556, 0), Vector(21.6027, 13.619763, 0)),
    Part.ArcOfCircle(Part.Circle(Vector(19.6596, 15.2556, 0), Vector(0, 0, 1), 2.54), math.radians(-40.093008), math.radians(220.093008)),
    Part.LineSegment(Vector(17.7165, 13.619763, 0), Vector(17.7165, 15.2556, 0)),
    Part.ArcOfCircle(Part.Circle(Vector(19.6596, 15.2556, 0), Vector(0, 0, 1), 1.9431), math.radians(0), math.radians(180)),
], False)
sketch5.addConstraint([
    Sketcher.Constraint("Coincident", 0, 2, 1, 1),
    Sketcher.Constraint("Coincident", 1, 2, 2, 1),
    Sketcher.Constraint("Tangent", 2, 2, 3, 2),
    Sketcher.Constraint("Tangent", 3, 1, 0, 1),
    Sketcher.Constraint("Vertical", 0),
    Sketcher.Constraint("Vertical", 2),
    Sketcher.Constraint("Coincident", 3, 3, 1, 3),
    Sketcher.Constraint("Radius", 1, Q("0.1 in")),
    Sketcher.Constraint("Radius", 3, Q("0.0765 in")),
    Sketcher.Constraint("DistanceX", -1, 1, 1, 3, Q("0.774 in")),
    Sketcher.Constraint("DistanceY", -1, 1, 1, 3, Q("15.2556 mm")),
])
pocket3 = body.newObject("PartDesign::Pocket", "Pocket002")
pocket3.Profile = sketch5
pocket3.Length = Q("0.015 in")

# Sketch on XY plane
sketch6 = body.newObject("Sketcher::SketchObject", "Sketch005")
sketch6.AttachmentSupport = (doc.getObject("XY_Plane"), [""])
sketch6.MapMode = "FlatFace"
sketch6.AttachmentOffset = App.Placement(Vector(0, 0, 0.0225 * 25.4), App.Rotation())
sketch6.addGeometry([
    Part.LineSegment(Vector(21.6027, 13.619763, 0), Vector(21.6027, 15.2556, 0)),
    Part.ArcOfCircle(Part.Circle(Vector(19.6596, 15.2556, 0), Vector(0, 0, 1), 1.9431), math.radians(0), math.radians(180)),
    Part.LineSegment(Vector(17.7165, 15.2556, 0), Vector(17.7165, 13.619763, 0)),
    Part.ArcOfCircle(Part.Circle(Vector(19.6596, 15.2556, 0), Vector(0, 0, 1), 2.54), math.radians(-40.093008), math.radians(220.093008)),
], False)
sketch6.addConstraint([
    Sketcher.Constraint("Tangent", 0, 2, 1, 1),
    Sketcher.Constraint("Tangent", 1, 2, 2, 1),
    Sketcher.Constraint("Coincident", 2, 2, 3, 2),
    Sketcher.Constraint("Coincident", 3, 1, 0, 1),
    Sketcher.Constraint("Vertical", 0),
    Sketcher.Constraint("Vertical", 2),
    Sketcher.Constraint("Coincident", 3, 3, 1, 3),
    Sketcher.Constraint("Radius", 3, Q("0.1 in")),
    Sketcher.Constraint("Radius", 1, Q("0.0765 in")),
    Sketcher.Constraint("DistanceX", -1, 1, 1, 3, Q("0.774 in")),
    Sketcher.Constraint("DistanceY", -1, 1, 1, 3, Q("15.2556 mm")),
])
pocket4 = body.newObject("PartDesign::Pocket", "Pocket003")
pocket4.Profile = sketch6
pocket4.Length = Q("0.015 in")
pocket4.Reversed = True

# Sketch on XY plane
sketch7 = body.newObject("Sketcher::SketchObject", "Sketch006")
sketch7.AttachmentSupport = (doc.getObject("XY_Plane"), [""])
sketch7.MapMode = "FlatFace"
sketch7.AttachmentOffset = App.Placement(Vector(0, 0, 0.0375 * 25.4), App.Rotation())
sketch7.addGeometry([
    Part.LineSegment(Vector(21.6027, 13.619763, 0), Vector(21.6027, 12.2936, 0)),
    Part.LineSegment(Vector(21.6027, 12.2936, 0), Vector(17.7165, 12.2936, 0)),
    Part.LineSegment(Vector(17.7165, 12.2936, 0), Vector(17.7165, 13.619763, 0)),
    Part.ArcOfCircle(Part.Circle(Vector(19.6596, 15.2556, 0), Vector(0, 0, 1), 2.54), math.radians(-139.906992), math.radians(-40.093008)),
], False)
sketch7.addConstraint([
    Sketcher.Constraint("Coincident", 0, 2, 1, 1),
    Sketcher.Constraint("Coincident", 1, 2, 2, 1),
    Sketcher.Constraint("Coincident", 2, 2, 3, 1),
    Sketcher.Constraint("Coincident", 3, 2, 0, 1),
    Sketcher.Constraint("Vertical", 0),
    Sketcher.Constraint("Horizontal", 1),
    Sketcher.Constraint("Vertical", 2),
    Sketcher.Constraint("Horizontal", 2, 2, 3, 2),
    Sketcher.Constraint("Radius", 3, Q("0.1 in")),
    Sketcher.Constraint("DistanceX", 1, 2, 1, 1, Q("0.153 in")),
    Sketcher.Constraint("DistanceX", -1, 1, 3, 3, Q("0.774 in")),
    Sketcher.Constraint("DistanceY", -1, 1, 0, 2, Q("0.484 in")),
    Sketcher.Constraint("DistanceY", -1, 1, 3, 3, Q("15.2556 mm")),
])
pocket5 = body.newObject("PartDesign::Pocket", "Pocket004")
pocket5.Profile = sketch7
pocket5.Length = Q("0.177 in")
pocket5.Reversed = True

doc.recompute()
